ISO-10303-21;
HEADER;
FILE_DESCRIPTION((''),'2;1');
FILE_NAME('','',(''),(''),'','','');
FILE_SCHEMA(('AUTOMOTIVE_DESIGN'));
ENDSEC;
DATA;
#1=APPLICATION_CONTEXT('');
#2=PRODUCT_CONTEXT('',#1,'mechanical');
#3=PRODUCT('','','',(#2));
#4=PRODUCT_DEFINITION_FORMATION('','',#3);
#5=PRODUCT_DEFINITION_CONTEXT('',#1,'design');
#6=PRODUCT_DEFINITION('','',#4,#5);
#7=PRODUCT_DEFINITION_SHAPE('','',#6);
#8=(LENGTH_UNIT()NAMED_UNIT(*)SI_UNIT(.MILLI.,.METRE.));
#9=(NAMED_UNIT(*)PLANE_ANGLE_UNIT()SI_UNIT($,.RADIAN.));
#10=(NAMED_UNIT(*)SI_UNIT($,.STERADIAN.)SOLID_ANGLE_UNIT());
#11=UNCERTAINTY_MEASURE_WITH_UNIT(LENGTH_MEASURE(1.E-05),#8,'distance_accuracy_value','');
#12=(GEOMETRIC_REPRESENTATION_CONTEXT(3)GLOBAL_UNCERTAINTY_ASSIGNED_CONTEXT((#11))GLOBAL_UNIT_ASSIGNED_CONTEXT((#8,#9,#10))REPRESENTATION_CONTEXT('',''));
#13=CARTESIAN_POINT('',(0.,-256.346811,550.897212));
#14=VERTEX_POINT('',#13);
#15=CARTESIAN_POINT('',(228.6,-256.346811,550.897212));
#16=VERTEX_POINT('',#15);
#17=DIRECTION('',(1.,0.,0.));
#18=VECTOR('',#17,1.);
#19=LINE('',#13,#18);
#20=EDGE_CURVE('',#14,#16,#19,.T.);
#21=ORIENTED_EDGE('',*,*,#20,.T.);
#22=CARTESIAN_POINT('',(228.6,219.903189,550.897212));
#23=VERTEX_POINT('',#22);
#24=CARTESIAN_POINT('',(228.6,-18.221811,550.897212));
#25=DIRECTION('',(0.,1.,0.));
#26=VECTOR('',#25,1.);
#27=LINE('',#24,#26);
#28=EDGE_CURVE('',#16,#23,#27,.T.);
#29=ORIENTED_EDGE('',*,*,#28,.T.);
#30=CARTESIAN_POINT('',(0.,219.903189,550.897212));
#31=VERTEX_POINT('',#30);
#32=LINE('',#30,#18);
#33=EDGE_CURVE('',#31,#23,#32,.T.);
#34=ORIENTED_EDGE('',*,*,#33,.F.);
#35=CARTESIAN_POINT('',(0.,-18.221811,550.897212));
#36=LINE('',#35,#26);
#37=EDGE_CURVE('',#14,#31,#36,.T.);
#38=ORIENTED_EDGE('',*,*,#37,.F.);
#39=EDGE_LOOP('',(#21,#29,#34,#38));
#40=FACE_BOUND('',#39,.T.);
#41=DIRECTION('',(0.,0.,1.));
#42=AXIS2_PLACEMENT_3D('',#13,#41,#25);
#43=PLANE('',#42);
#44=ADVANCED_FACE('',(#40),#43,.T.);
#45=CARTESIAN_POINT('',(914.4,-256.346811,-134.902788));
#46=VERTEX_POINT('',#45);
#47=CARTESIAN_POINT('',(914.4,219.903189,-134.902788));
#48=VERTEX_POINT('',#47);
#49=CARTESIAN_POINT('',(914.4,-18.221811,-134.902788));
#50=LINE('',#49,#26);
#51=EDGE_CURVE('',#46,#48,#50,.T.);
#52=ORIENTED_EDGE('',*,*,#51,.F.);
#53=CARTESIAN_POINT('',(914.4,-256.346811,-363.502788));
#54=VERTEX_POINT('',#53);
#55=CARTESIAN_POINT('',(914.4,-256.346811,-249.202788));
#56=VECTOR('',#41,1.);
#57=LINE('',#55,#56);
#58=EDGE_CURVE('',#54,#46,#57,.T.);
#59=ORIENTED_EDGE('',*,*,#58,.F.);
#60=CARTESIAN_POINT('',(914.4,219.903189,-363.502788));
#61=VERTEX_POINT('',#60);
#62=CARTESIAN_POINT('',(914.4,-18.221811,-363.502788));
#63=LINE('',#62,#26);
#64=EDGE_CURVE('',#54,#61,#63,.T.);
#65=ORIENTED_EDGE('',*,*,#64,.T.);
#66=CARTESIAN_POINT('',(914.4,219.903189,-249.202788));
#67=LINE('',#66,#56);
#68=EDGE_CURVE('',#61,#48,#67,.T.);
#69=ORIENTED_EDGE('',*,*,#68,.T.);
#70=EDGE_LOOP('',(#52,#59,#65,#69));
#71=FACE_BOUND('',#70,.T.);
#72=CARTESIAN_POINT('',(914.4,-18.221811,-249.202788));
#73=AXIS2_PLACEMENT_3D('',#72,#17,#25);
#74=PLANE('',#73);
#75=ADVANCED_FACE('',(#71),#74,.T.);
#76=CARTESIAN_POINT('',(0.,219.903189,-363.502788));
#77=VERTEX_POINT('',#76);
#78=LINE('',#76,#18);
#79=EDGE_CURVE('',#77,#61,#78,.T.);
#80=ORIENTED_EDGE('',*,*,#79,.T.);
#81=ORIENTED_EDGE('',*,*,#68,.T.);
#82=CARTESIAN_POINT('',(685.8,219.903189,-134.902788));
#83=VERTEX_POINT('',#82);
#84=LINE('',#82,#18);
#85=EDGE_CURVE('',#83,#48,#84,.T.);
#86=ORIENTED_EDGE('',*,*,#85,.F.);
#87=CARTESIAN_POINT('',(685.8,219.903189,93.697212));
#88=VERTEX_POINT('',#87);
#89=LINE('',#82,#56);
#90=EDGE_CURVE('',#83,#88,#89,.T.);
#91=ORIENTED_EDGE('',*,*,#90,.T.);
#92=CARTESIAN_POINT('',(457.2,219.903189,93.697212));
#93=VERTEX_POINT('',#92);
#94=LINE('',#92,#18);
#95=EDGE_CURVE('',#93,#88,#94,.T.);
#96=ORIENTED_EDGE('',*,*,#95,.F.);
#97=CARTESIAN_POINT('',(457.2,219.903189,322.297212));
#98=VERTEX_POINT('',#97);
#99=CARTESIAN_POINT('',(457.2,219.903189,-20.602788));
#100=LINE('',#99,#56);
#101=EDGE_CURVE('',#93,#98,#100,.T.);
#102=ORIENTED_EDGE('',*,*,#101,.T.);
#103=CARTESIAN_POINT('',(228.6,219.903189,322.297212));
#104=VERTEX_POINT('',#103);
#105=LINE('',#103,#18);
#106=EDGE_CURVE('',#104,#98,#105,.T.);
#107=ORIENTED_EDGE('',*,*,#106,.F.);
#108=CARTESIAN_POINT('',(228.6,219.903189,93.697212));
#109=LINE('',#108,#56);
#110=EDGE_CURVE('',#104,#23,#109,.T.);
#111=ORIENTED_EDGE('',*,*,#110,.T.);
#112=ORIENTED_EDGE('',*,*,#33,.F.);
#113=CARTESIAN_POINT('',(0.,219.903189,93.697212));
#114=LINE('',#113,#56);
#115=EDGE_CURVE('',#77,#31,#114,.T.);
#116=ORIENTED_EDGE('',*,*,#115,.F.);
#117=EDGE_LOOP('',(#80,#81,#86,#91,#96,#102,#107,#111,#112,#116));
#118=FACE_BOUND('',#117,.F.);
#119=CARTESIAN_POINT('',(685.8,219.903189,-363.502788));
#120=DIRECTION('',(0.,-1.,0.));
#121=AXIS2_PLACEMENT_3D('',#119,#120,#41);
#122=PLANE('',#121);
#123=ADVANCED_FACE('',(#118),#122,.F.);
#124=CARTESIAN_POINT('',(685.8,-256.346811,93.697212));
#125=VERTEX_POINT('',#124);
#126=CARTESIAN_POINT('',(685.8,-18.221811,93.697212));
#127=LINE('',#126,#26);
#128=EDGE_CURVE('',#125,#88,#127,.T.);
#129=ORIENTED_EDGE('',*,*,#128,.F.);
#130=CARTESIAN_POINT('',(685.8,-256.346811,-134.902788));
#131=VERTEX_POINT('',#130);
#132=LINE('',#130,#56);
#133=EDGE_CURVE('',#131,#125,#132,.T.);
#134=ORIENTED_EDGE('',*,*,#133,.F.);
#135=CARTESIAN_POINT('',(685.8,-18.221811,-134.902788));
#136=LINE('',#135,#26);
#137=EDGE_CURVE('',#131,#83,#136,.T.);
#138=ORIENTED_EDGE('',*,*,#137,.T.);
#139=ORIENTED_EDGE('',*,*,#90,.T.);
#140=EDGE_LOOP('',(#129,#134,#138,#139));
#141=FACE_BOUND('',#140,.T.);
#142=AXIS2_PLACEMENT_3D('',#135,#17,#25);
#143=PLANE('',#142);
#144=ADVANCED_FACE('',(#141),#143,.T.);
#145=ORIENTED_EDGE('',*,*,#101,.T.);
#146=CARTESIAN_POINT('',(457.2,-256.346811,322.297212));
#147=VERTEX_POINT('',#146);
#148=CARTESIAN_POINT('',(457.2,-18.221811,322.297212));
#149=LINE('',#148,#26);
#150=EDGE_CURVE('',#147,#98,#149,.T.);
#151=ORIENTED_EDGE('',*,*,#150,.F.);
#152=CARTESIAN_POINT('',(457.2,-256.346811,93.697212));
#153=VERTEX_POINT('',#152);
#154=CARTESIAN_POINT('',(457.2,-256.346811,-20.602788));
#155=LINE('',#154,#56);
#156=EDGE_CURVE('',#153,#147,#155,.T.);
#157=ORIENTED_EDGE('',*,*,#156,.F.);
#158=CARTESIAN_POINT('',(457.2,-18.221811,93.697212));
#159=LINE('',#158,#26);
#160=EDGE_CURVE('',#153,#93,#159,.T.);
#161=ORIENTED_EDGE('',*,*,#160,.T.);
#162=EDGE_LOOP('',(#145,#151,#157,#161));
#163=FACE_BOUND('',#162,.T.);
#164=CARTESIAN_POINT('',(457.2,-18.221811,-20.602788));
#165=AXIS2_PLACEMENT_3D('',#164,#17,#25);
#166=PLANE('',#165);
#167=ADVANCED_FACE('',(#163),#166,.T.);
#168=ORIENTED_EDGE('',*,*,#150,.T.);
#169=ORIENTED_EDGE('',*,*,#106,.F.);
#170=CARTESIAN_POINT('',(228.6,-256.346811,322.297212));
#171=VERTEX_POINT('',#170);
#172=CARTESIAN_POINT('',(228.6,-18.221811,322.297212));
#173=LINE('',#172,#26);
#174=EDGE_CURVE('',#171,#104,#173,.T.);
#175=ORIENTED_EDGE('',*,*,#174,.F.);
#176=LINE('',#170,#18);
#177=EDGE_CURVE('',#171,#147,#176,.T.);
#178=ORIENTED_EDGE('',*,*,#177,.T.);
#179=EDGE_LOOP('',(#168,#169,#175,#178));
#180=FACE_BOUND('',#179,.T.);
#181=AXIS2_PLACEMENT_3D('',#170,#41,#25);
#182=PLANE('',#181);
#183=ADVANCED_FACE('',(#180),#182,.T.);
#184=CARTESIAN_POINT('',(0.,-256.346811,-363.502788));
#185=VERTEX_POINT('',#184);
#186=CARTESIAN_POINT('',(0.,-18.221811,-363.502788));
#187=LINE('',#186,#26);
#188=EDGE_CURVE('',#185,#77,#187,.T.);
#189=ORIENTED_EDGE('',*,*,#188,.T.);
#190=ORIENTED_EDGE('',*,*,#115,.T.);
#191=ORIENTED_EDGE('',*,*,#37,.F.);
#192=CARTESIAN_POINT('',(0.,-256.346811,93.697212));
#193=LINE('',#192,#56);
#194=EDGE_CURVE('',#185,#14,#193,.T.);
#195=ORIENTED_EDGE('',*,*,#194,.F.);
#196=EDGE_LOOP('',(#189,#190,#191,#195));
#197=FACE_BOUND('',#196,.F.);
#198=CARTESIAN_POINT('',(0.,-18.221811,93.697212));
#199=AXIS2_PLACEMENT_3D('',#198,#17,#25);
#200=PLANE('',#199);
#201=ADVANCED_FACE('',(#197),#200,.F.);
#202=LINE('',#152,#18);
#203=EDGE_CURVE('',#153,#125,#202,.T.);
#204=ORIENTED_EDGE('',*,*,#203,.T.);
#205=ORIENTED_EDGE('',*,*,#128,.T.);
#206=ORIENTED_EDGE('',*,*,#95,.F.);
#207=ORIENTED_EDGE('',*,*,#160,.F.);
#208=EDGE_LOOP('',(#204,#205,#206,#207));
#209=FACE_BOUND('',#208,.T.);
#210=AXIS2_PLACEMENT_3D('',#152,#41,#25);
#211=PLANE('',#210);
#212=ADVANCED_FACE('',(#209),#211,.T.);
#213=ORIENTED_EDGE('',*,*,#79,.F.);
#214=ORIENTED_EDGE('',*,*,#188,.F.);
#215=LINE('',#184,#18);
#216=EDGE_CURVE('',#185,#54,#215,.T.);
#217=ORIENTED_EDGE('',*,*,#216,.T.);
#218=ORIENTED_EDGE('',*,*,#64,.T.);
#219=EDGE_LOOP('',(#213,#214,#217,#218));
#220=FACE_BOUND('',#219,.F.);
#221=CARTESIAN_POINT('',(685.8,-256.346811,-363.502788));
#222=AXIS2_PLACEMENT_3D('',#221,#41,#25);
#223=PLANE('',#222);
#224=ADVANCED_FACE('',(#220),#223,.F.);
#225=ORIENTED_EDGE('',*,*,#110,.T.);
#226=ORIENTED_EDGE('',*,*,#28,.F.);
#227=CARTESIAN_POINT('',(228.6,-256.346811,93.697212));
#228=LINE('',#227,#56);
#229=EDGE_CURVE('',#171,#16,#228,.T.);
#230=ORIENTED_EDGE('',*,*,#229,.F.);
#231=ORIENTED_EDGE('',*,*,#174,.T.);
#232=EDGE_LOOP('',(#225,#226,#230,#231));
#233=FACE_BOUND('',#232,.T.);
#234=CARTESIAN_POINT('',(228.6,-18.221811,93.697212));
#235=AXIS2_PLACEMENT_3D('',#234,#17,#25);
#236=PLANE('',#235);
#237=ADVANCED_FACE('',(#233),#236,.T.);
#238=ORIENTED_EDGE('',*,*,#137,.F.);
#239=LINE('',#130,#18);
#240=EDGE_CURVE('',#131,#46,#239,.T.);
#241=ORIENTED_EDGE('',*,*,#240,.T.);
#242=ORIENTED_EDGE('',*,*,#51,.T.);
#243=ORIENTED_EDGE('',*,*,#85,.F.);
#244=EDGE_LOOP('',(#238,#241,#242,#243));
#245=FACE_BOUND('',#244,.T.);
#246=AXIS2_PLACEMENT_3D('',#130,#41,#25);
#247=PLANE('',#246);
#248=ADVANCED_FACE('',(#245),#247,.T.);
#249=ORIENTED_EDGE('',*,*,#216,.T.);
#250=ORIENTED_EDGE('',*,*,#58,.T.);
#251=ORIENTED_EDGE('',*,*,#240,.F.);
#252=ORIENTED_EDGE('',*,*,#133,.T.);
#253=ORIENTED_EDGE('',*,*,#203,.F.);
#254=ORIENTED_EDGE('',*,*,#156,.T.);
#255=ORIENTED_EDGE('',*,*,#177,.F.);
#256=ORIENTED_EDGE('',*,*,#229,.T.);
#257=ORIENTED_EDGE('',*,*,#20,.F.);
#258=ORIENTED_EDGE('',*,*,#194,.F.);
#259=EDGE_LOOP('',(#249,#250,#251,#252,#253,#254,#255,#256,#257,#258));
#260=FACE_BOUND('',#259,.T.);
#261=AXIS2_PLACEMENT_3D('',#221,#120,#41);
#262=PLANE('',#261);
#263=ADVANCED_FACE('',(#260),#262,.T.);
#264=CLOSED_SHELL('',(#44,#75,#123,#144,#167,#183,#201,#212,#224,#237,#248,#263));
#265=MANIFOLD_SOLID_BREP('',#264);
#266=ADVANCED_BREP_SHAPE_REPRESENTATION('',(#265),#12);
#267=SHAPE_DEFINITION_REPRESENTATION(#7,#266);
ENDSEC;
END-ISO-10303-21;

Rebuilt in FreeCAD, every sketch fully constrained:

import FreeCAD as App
import Part
import Sketcher

V = App.Vector
Q = App.Units.Quantity


def add_polygon(sketch, points):
    """Adds a closed chain of lines whose ends are joined by coincident constraints."""
    first, n = sketch.GeometryCount, len(points)
    for a, b in zip(points, points[1:] + points[:1]):
        sketch.addGeometry(Part.LineSegment(App.Vector(*a, 0), App.Vector(*b, 0)), False)
    for i in range(n):
        sketch.addConstraint(Sketcher.Constraint("Coincident", first + i, 2, first + (i + 1) % n, 1))

doc = App.newDocument("Part")
body = doc.addObject("PartDesign::Body", "Body")

# Sketch on YZ plane
sketch1 = doc.addObject("Sketcher::SketchObject", "Sketch")
body.addObject(sketch1)
sketch1.AttachmentSupport = (doc.YZ_Plane, [""])
sketch1.MapMode = "FlatFace"
add_polygon(sketch1, [(-256, 551), (-256, -364), (220, -364), (220, 551)])  # lines 0-3
sketch1.addConstraint([
    Sketcher.Constraint("Vertical", 0),
    Sketcher.Constraint("Horizontal", 1),
    Sketcher.Constraint("Vertical", 2),
    Sketcher.Constraint("Horizontal", 3),
    Sketcher.Constraint("DistanceY", 0, 2, 0, 1, Q("36 in")),
    Sketcher.Constraint("DistanceX", 1, 1, 1, 2, Q("18.75 in")),
    Sketcher.Constraint("DistanceX", 0, 2, -1, 1, Q("256.346811 mm")),
    Sketcher.Constraint("DistanceY", 0, 2, -1, 1, Q("363.502788 mm")),
])
pad1 = doc.addObject("PartDesign::Pad", "Pad")
body.addObject(pad1)
pad1.Profile = sketch1
pad1.Length = Q("9 in")

# Sketch on YZ plane
sketch2 = doc.addObject("Sketcher::SketchObject", "Sketch001")
body.addObject(sketch2)
sketch2.AttachmentSupport = (doc.YZ_Plane, [""])
sketch2.MapMode = "FlatFace"
sketch2.AttachmentOffset = App.Placement(V(0, 0, 9 * 25.4), App.Rotation())
add_polygon(sketch2, [(-256, 322), (-256, -364), (220, -364), (220, 322)])  # lines 0-3
sketch2.addConstraint([
    Sketcher.Constraint("Vertical", 0),
    Sketcher.Constraint("Horizontal", 1),
    Sketcher.Constraint("Vertical", 2),
    Sketcher.Constraint("Horizontal", 3),
    Sketcher.Constraint("DistanceY", 0, 2, 0, 1, Q("27 in")),
    Sketcher.Constraint("DistanceX", 1, 1, 1, 2, Q("18.75 in")),
    Sketcher.Constraint("DistanceX", 0, 2, -1, 1, Q("256.346811 mm")),
    Sketcher.Constraint("DistanceY", 0, 2, -1, 1, Q("363.502788 mm")),
])
pad2 = doc.addObject("PartDesign::Pad", "Pad001")
body.addObject(pad2)
pad2.Profile = sketch2
pad2.Length = Q("9 in")

# Sketch on YZ plane
sketch3 = doc.addObject("Sketcher::SketchObject", "Sketch002")
body.addObject(sketch3)
sketch3.AttachmentSupport = (doc.YZ_Plane, [""])
sketch3.MapMode = "FlatFace"
sketch3.AttachmentOffset = App.Placement(V(0, 0, 18 * 25.4), App.Rotation())
add_polygon(sketch3, [(-256, 94), (-256, -364), (220, -364), (220, 94)])  # lines 0-3
sketch3.addConstraint([
    Sketcher.Constraint("Vertical", 0),
    Sketcher.Constraint("Horizontal", 1),
    Sketcher.Constraint("Vertical", 2),
    Sketcher.Constraint("Horizontal", 3),
    Sketcher.Constraint("DistanceY", 0, 2, 0, 1, Q("18 in")),
    Sketcher.Constraint("DistanceX", 1, 1, 1, 2, Q("18.75 in")),
    Sketcher.Constraint("DistanceX", 0, 2, -1, 1, Q("256.346811 mm")),
    Sketcher.Constraint("DistanceY", 0, 2, -1, 1, Q("363.502788 mm")),
])
pad3 = doc.addObject("PartDesign::Pad", "Pad002")
body.addObject(pad3)
pad3.Profile = sketch3
pad3.Length = Q("9 in")

# Sketch on YZ plane
sketch4 = doc.addObject("Sketcher::SketchObject", "Sketch003")
body.addObject(sketch4)
sketch4.AttachmentSupport = (doc.YZ_Plane, [""])
sketch4.MapMode = "FlatFace"
sketch4.AttachmentOffset = App.Placement(V(0, 0, 27 * 25.4), App.Rotation())
add_polygon(sketch4, [(-256, -135), (-256, -364), (220, -364), (220, -135)])  # lines 0-3
sketch4.addConstraint([
    Sketcher.Constraint("Vertical", 0),
    Sketcher.Constraint("Horizontal", 1),
    Sketcher.Constraint("Vertical", 2),
    Sketcher.Constraint("Horizontal", 3),
    Sketcher.Constraint("DistanceY", 0, 2, 0, 1, Q("9 in")),
    Sketcher.Constraint("DistanceX", 1, 1, 1, 2, Q("18.75 in")),
    Sketcher.Constraint("DistanceX", 0, 2, -1, 1, Q("256.346811 mm")),
    Sketcher.Constraint("DistanceY", 0, 2, -1, 1, Q("363.502788 mm")),
])
pad4 = doc.addObject("PartDesign::Pad", "Pad003")
body.addObject(pad4)
pad4.Profile = sketch4
pad4.Length = Q("9 in")

doc.recompute()
